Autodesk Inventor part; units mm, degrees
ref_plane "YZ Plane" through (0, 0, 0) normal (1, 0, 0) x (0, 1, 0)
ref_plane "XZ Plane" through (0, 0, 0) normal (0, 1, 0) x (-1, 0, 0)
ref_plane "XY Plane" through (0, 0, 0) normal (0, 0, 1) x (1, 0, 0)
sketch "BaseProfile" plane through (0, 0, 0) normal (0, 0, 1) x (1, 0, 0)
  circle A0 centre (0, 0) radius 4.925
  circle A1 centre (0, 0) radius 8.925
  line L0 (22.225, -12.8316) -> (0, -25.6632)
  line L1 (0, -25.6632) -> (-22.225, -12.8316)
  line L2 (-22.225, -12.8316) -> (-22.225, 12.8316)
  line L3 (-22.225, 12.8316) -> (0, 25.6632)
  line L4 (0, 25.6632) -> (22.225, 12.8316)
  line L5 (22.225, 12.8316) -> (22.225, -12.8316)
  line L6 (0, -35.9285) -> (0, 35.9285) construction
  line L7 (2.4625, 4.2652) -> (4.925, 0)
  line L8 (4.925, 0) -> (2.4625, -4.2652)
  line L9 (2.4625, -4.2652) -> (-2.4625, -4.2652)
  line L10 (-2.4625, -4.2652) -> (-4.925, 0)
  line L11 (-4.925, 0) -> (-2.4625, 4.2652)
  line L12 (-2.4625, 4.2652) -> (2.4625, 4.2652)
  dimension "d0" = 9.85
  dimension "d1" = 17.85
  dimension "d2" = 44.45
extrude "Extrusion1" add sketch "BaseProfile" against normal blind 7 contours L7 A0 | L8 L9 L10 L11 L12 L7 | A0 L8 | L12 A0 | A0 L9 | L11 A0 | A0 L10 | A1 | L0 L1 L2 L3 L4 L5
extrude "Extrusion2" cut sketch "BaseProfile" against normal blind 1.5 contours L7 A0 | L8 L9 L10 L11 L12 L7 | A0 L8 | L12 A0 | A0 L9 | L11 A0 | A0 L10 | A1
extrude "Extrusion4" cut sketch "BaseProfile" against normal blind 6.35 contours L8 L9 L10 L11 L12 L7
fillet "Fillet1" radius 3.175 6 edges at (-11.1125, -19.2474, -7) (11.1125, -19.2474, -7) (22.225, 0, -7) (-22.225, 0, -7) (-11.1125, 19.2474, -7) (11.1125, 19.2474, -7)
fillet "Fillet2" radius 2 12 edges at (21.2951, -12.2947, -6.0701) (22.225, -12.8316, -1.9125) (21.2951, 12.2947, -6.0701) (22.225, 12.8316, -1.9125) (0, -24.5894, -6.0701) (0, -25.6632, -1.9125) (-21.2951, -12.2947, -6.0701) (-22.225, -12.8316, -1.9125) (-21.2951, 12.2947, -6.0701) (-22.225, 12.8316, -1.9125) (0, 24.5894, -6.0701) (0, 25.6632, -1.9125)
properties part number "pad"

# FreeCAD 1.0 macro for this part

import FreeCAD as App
import Part
import Sketcher
from FreeCAD import Vector
Q = App.Units.Quantity


def edges_at(feature, points):
    """Names of the edges that pass closest to the given points."""
    edges = feature.Shape.Edges
    near = lambda p: min(range(len(edges)), key=lambda i: edges[i].distToShape(Part.Vertex(*p))[0])
    return sorted({f"Edge{near(p) + 1}" for p in points})

doc = App.newDocument("Part")
params = doc.addObject("Spreadsheet::Sheet", "Params")
for row, (alias, value) in enumerate([
    ("pad1_length", "7 mm"),
    ("sketch2_diameter", "17.85 mm"),
    ("pocket1_length", "1.5 mm"),
    ("pocket2_length", "6.35 mm"),
    ("fillet_radius", "3.175 mm"),
    ("fillet2_radius", "2 mm"),
], start=1):
    params.set(f"A{row}", alias)
    params.set(f"B{row}", "=" + value)
    params.setAlias(f"B{row}", alias)

body = doc.addObject("PartDesign::Body", "Body")

# Sketch on XY plane
sketch1 = body.newObject("Sketcher::SketchObject", "Sketch")
sketch1.AttachmentSupport = (doc.getObject("XY_Plane"), [""])
sketch1.MapMode = "FlatFace"
sketch1.addGeometry(Part.LineSegment(Vector(0, -26, 0), Vector(22, -13, 0)), False)
sketch1.addGeometry(Part.LineSegment(Vector(22, -13, 0), Vector(22, 13, 0)), False)
sketch1.addGeometry(Part.LineSegment(Vector(22, 13, 0), Vector(0, 26, 0)), False)
sketch1.addGeometry(Part.LineSegment(Vector(0, 26, 0), Vector(-22, 13, 0)), False)
sketch1.addGeometry(Part.LineSegment(Vector(-22, 13, 0), Vector(-22, -13, 0)), False)
sketch1.addGeometry(Part.LineSegment(Vector(-22, -13, 0), Vector(0, -26, 0)), False)
sketch1.addConstraint(Sketcher.Constraint("Coincident", 0, 2, 1, 1))
sketch1.addConstraint(Sketcher.Constraint("Coincident", 1, 2, 2, 1))
sketch1.addConstraint(Sketcher.Constraint("Coincident", 2, 2, 3, 1))
sketch1.addConstraint(Sketcher.Constraint("Coincident", 3, 2, 4, 1))
sketch1.addConstraint(Sketcher.Constraint("Coincident", 4, 2, 5, 1))
sketch1.addConstraint(Sketcher.Constraint("Coincident", 5, 2, 0, 1))
sketch1.addConstraint(Sketcher.Constraint("Vertical", 1))
sketch1.addConstraint(Sketcher.Constraint("Vertical", 4))
sketch1.addConstraint(Sketcher.Constraint("Symmetric", 0, 2, 3, 2, -1, 1))
sketch1.addConstraint(Sketcher.Constraint("Symmetric", 2, 2, 5, 2, -1, 1))
sketch1.addConstraint(Sketcher.Constraint("PointOnObject", 2, 2, -2))
sketch1.addConstraint(Sketcher.Constraint("Parallel", 2, 5))
sketch1.addConstraint(Sketcher.Constraint("Horizontal", 1, 2, 3, 2))
sketch1.addConstraint(Sketcher.Constraint("Angle", 0, Q("30 deg")))
sketch1.addConstraint(Sketcher.Constraint("DistanceX", 3, 2, 1, 2, Q("44.45 mm")))
sketch1.addConstraint(Sketcher.Constraint("DistanceY", 1, 1, 1, 2, Q("25.6632 mm")))
pad1 = body.newObject("PartDesign::Pad", "Pad")
pad1.Profile = sketch1
pad1.setExpression("Length", "Params.pad1_length")
pad1.Reversed = True

# Sketch on XY plane
sketch2 = body.newObject("Sketcher::SketchObject", "Sketch001")
sketch2.AttachmentSupport = (doc.getObject("XY_Plane"), [""])
sketch2.MapMode = "FlatFace"
sketch2.addGeometry(Part.Circle(Vector(0, 0, 0), Vector(0, 0, 1), 9), False)
sketch2.addConstraint(Sketcher.Constraint("Coincident", 0, 3, -1, 1))
sketch2.addConstraint(Sketcher.Constraint("Diameter", 0, Q("17.85 mm")))
sketch2.setExpression("Constraints[1]", "Params.sketch2_diameter")
pocket1 = body.newObject("PartDesign::Pocket", "Pocket")
pocket1.Profile = sketch2
pocket1.setExpression("Length", "Params.pocket1_length")

# Sketch on XY plane
sketch3 = body.newObject("Sketcher::SketchObject", "Sketch002")
sketch3.AttachmentSupport = (doc.getObject("XY_Plane"), [""])
sketch3.MapMode = "FlatFace"
sketch3.addGeometry(Part.LineSegment(Vector(2.5, -4.3, 0), Vector(4.9, 0, 0)), False)
sketch3.addGeometry(Part.LineSegment(Vector(4.9, 0, 0), Vector(2.5, 4.3, 0)), False)
sketch3.addGeometry(Part.LineSegment(Vector(2.5, 4.3, 0), Vector(-2.5, 4.3, 0)), False)
sketch3.addGeometry(Part.LineSegment(Vector(-2.5, 4.3, 0), Vector(-4.9, 0, 0)), False)
sketch3.addGeometry(Part.LineSegment(Vector(-4.9, 0, 0), Vector(-2.5, -4.3, 0)), False)
sketch3.addGeometry(Part.LineSegment(Vector(-2.5, -4.3, 0), Vector(2.5, -4.3, 0)), False)
sketch3.addConstraint(Sketcher.Constraint("Coincident", 0, 2, 1, 1))
sketch3.addConstraint(Sketcher.Constraint("Coincident", 1, 2, 2, 1))
sketch3.addConstraint(Sketcher.Constraint("Coincident", 2, 2, 3, 1))
sketch3.addConstraint(Sketcher.Constraint("Coincident", 3, 2, 4, 1))
sketch3.addConstraint(Sketcher.Constraint("Coincident", 4, 2, 5, 1))
sketch3.addConstraint(Sketcher.Constraint("Coincident", 5, 2, 0, 1))
sketch3.addConstraint(Sketcher.Constraint("Horizontal", 2))
sketch3.addConstraint(Sketcher.Constraint("Horizontal", 5))
sketch3.addConstraint(Sketcher.Constraint("Symmetric", 0, 2, 3, 2, -1, 1))
sketch3.addConstraint(Sketcher.Constraint("Symmetric", 1, 2, 4, 2, -1, 1))
sketch3.addConstraint(Sketcher.Constraint("PointOnObject", 0, 2, -1))
sketch3.addConstraint(Sketcher.Constraint("Parallel", 0, 3))
sketch3.addConstraint(Sketcher.Constraint("Vertical", 2, 2, 4, 2))
sketch3.addConstraint(Sketcher.Constraint("Angle", 0, Q("60.0001 deg")))
sketch3.addConstraint(Sketcher.Constraint("DistanceX", 3, 2, 0, 2, Q("9.85 mm")))
sketch3.addConstraint(Sketcher.Constraint("DistanceX", 2, 2, 2, 1, Q("4.925 mm")))
pocket2 = body.newObject("PartDesign::Pocket", "Pocket001")
pocket2.Profile = sketch3
pocket2.setExpression("Length", "Params.pocket2_length")
doc.recompute()

fillet = body.newObject("PartDesign::Fillet", "Fillet")
fillet.Base = (pocket2, edges_at(pocket2, [
    (-11.113, -19.247, -7),
    (11.113, -19.247, -7),
    (22.225, 0, -7),
    (-22.225, 0, -7),
    (-11.113, 19.247, -7),
    (11.113, 19.247, -7),
]))
fillet.setExpression("Radius", "Params.fillet_radius")
doc.recompute()

fillet2 = body.newObject("PartDesign::Fillet", "Fillet001")
fillet2.Base = (fillet, edges_at(fillet, [
    (21.295, -12.295, -6.07),
    (22.225, -12.832, -1.913),
    (21.295, 12.295, -6.07),
    (22.225, 12.832, -1.913),
    (0, -24.589, -6.07),
    (0, -25.663, -1.913),
    (-21.295, -12.295, -6.07),
    (-22.225, -12.832, -1.913),
    (-21.295, 12.295, -6.07),
    (-22.225, 12.832, -1.913),
    (0, 24.589, -6.07),
    (0, 25.663, -1.913),
]))
fillet2.setExpression("Radius", "Params.fillet2_radius")

doc.recompute()
